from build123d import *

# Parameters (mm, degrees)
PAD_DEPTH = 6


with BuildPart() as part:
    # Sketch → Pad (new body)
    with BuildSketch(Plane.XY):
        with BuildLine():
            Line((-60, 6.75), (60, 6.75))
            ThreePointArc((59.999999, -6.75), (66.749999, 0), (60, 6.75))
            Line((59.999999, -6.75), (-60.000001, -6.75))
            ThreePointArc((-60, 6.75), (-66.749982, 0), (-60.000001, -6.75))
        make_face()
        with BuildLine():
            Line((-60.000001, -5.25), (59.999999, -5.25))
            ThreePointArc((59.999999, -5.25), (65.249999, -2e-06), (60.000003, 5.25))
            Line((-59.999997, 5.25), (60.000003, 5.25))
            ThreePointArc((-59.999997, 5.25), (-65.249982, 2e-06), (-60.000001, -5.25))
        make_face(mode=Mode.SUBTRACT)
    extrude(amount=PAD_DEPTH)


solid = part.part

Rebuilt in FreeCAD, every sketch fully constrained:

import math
import FreeCAD as App
import Part
import Sketcher

V = App.Vector
Q = App.Units.Quantity

doc = App.newDocument("Part")
params = doc.addObject("Spreadsheet::Sheet", "Params")
for row, (alias, value) in enumerate([
    ("sketch1_width", "120 mm"),
    ("sketch1_radius", "6.75 mm"),
    ("sketch1_radius2", "5.25 mm"),
    ("pad1_length", "6 mm"),
], start=1):
    params.set(f"A{row}", alias)
    params.set(f"B{row}", "=" + value)
    params.setAlias(f"B{row}", alias)

body = doc.addObject("PartDesign::Body", "Body")

sketch1 = body.newObject("Sketcher::SketchObject", "Sketch")
sketch1.AttachmentSupport = (doc.getObject("XY_Plane"), [""])
sketch1.MapMode = "FlatFace"
sketch1.addGeometry(Part.LineSegment(V(60, 7, 0), V(-60, 7, 0)), False)
sketch1.addGeometry(Part.ArcOfCircle(Part.Circle(V(-60, 0, 0), V(0, 0, 1), 7), math.radians(90), math.radians(270)), False)
sketch1.addGeometry(Part.LineSegment(V(-60, -7, 0), V(60, -7, 0)), False)
sketch1.addGeometry(Part.ArcOfCircle(Part.Circle(V(60, 0, 0), V(0, 0, 1), 7), math.radians(-90), math.radians(90)), False)
sketch1.addGeometry(Part.ArcOfCircle(Part.Circle(V(-60, 0, 0), V(0, 0, 1), 5), math.radians(90), math.radians(270)), False)
sketch1.addGeometry(Part.LineSegment(V(-60, 5, 0), V(60, 5, 0)), False)
sketch1.addGeometry(Part.ArcOfCircle(Part.Circle(V(60, 0, 0), V(0, 0, 1), 5), math.radians(-90), math.radians(90)), False)
sketch1.addGeometry(Part.LineSegment(V(60, -5, 0), V(-60, -5, 0)), False)
sketch1.addConstraint(Sketcher.Constraint("Coincident", 0, 2, 1, 1))
sketch1.addConstraint(Sketcher.Constraint("Coincident", 1, 2, 2, 1))
sketch1.addConstraint(Sketcher.Constraint("Tangent", 2, 2, 3, 1))
sketch1.addConstraint(Sketcher.Constraint("Tangent", 3, 2, 0, 1))
sketch1.addConstraint(Sketcher.Constraint("Coincident", 4, 1, 5, 1))
sketch1.addConstraint(Sketcher.Constraint("Tangent", 5, 2, 6, 2))
sketch1.addConstraint(Sketcher.Constraint("Tangent", 6, 1, 7, 1))
sketch1.addConstraint(Sketcher.Constraint("Coincident", 7, 2, 4, 2))
sketch1.addConstraint(Sketcher.Constraint("Horizontal", 0))
sketch1.addConstraint(Sketcher.Constraint("Horizontal", 2))
sketch1.addConstraint(Sketcher.Constraint("Horizontal", 5))
sketch1.addConstraint(Sketcher.Constraint("Horizontal", 7))
sketch1.addConstraint(Sketcher.Constraint("Coincident", 4, 3, 1, 3))
sketch1.addConstraint(Sketcher.Constraint("Symmetric", 0, 2, 2, 2, -1, 1))
sketch1.addConstraint(Sketcher.Constraint("Vertical", 0, 2, 1, 2))
sketch1.addConstraint(Sketcher.Constraint("Vertical", 6, 3, 2, 2))
sketch1.addConstraint(Sketcher.Constraint("Vertical", 1, 2, 7, 2))
sketch1.addConstraint(Sketcher.Constraint("Equal", 2, 5))
sketch1.addConstraint(Sketcher.Constraint("DistanceX", 0, 2, 0, 1, Q("120 mm")))
sketch1.addConstraint(Sketcher.Constraint("Radius", 1, Q("6.75 mm")))
sketch1.addConstraint(Sketcher.Constraint("Radius", 4, Q("5.25 mm")))
sketch1.addConstraint(Sketcher.Constraint("DistanceX", 1, 3, 3, 3, Q("119.999981 mm")))
sketch1.setExpression("Constraints[18]", "Params.sketch1_width")
sketch1.setExpression("Constraints[19]", "Params.sketch1_radius")
sketch1.setExpression("Constraints[20]", "Params.sketch1_radius2")
pad1 = body.newObject("PartDesign::Pad", "Pad")
pad1.Profile = sketch1
pad1.setExpression("Length", "Params.pad1_length")

doc.recompute()
